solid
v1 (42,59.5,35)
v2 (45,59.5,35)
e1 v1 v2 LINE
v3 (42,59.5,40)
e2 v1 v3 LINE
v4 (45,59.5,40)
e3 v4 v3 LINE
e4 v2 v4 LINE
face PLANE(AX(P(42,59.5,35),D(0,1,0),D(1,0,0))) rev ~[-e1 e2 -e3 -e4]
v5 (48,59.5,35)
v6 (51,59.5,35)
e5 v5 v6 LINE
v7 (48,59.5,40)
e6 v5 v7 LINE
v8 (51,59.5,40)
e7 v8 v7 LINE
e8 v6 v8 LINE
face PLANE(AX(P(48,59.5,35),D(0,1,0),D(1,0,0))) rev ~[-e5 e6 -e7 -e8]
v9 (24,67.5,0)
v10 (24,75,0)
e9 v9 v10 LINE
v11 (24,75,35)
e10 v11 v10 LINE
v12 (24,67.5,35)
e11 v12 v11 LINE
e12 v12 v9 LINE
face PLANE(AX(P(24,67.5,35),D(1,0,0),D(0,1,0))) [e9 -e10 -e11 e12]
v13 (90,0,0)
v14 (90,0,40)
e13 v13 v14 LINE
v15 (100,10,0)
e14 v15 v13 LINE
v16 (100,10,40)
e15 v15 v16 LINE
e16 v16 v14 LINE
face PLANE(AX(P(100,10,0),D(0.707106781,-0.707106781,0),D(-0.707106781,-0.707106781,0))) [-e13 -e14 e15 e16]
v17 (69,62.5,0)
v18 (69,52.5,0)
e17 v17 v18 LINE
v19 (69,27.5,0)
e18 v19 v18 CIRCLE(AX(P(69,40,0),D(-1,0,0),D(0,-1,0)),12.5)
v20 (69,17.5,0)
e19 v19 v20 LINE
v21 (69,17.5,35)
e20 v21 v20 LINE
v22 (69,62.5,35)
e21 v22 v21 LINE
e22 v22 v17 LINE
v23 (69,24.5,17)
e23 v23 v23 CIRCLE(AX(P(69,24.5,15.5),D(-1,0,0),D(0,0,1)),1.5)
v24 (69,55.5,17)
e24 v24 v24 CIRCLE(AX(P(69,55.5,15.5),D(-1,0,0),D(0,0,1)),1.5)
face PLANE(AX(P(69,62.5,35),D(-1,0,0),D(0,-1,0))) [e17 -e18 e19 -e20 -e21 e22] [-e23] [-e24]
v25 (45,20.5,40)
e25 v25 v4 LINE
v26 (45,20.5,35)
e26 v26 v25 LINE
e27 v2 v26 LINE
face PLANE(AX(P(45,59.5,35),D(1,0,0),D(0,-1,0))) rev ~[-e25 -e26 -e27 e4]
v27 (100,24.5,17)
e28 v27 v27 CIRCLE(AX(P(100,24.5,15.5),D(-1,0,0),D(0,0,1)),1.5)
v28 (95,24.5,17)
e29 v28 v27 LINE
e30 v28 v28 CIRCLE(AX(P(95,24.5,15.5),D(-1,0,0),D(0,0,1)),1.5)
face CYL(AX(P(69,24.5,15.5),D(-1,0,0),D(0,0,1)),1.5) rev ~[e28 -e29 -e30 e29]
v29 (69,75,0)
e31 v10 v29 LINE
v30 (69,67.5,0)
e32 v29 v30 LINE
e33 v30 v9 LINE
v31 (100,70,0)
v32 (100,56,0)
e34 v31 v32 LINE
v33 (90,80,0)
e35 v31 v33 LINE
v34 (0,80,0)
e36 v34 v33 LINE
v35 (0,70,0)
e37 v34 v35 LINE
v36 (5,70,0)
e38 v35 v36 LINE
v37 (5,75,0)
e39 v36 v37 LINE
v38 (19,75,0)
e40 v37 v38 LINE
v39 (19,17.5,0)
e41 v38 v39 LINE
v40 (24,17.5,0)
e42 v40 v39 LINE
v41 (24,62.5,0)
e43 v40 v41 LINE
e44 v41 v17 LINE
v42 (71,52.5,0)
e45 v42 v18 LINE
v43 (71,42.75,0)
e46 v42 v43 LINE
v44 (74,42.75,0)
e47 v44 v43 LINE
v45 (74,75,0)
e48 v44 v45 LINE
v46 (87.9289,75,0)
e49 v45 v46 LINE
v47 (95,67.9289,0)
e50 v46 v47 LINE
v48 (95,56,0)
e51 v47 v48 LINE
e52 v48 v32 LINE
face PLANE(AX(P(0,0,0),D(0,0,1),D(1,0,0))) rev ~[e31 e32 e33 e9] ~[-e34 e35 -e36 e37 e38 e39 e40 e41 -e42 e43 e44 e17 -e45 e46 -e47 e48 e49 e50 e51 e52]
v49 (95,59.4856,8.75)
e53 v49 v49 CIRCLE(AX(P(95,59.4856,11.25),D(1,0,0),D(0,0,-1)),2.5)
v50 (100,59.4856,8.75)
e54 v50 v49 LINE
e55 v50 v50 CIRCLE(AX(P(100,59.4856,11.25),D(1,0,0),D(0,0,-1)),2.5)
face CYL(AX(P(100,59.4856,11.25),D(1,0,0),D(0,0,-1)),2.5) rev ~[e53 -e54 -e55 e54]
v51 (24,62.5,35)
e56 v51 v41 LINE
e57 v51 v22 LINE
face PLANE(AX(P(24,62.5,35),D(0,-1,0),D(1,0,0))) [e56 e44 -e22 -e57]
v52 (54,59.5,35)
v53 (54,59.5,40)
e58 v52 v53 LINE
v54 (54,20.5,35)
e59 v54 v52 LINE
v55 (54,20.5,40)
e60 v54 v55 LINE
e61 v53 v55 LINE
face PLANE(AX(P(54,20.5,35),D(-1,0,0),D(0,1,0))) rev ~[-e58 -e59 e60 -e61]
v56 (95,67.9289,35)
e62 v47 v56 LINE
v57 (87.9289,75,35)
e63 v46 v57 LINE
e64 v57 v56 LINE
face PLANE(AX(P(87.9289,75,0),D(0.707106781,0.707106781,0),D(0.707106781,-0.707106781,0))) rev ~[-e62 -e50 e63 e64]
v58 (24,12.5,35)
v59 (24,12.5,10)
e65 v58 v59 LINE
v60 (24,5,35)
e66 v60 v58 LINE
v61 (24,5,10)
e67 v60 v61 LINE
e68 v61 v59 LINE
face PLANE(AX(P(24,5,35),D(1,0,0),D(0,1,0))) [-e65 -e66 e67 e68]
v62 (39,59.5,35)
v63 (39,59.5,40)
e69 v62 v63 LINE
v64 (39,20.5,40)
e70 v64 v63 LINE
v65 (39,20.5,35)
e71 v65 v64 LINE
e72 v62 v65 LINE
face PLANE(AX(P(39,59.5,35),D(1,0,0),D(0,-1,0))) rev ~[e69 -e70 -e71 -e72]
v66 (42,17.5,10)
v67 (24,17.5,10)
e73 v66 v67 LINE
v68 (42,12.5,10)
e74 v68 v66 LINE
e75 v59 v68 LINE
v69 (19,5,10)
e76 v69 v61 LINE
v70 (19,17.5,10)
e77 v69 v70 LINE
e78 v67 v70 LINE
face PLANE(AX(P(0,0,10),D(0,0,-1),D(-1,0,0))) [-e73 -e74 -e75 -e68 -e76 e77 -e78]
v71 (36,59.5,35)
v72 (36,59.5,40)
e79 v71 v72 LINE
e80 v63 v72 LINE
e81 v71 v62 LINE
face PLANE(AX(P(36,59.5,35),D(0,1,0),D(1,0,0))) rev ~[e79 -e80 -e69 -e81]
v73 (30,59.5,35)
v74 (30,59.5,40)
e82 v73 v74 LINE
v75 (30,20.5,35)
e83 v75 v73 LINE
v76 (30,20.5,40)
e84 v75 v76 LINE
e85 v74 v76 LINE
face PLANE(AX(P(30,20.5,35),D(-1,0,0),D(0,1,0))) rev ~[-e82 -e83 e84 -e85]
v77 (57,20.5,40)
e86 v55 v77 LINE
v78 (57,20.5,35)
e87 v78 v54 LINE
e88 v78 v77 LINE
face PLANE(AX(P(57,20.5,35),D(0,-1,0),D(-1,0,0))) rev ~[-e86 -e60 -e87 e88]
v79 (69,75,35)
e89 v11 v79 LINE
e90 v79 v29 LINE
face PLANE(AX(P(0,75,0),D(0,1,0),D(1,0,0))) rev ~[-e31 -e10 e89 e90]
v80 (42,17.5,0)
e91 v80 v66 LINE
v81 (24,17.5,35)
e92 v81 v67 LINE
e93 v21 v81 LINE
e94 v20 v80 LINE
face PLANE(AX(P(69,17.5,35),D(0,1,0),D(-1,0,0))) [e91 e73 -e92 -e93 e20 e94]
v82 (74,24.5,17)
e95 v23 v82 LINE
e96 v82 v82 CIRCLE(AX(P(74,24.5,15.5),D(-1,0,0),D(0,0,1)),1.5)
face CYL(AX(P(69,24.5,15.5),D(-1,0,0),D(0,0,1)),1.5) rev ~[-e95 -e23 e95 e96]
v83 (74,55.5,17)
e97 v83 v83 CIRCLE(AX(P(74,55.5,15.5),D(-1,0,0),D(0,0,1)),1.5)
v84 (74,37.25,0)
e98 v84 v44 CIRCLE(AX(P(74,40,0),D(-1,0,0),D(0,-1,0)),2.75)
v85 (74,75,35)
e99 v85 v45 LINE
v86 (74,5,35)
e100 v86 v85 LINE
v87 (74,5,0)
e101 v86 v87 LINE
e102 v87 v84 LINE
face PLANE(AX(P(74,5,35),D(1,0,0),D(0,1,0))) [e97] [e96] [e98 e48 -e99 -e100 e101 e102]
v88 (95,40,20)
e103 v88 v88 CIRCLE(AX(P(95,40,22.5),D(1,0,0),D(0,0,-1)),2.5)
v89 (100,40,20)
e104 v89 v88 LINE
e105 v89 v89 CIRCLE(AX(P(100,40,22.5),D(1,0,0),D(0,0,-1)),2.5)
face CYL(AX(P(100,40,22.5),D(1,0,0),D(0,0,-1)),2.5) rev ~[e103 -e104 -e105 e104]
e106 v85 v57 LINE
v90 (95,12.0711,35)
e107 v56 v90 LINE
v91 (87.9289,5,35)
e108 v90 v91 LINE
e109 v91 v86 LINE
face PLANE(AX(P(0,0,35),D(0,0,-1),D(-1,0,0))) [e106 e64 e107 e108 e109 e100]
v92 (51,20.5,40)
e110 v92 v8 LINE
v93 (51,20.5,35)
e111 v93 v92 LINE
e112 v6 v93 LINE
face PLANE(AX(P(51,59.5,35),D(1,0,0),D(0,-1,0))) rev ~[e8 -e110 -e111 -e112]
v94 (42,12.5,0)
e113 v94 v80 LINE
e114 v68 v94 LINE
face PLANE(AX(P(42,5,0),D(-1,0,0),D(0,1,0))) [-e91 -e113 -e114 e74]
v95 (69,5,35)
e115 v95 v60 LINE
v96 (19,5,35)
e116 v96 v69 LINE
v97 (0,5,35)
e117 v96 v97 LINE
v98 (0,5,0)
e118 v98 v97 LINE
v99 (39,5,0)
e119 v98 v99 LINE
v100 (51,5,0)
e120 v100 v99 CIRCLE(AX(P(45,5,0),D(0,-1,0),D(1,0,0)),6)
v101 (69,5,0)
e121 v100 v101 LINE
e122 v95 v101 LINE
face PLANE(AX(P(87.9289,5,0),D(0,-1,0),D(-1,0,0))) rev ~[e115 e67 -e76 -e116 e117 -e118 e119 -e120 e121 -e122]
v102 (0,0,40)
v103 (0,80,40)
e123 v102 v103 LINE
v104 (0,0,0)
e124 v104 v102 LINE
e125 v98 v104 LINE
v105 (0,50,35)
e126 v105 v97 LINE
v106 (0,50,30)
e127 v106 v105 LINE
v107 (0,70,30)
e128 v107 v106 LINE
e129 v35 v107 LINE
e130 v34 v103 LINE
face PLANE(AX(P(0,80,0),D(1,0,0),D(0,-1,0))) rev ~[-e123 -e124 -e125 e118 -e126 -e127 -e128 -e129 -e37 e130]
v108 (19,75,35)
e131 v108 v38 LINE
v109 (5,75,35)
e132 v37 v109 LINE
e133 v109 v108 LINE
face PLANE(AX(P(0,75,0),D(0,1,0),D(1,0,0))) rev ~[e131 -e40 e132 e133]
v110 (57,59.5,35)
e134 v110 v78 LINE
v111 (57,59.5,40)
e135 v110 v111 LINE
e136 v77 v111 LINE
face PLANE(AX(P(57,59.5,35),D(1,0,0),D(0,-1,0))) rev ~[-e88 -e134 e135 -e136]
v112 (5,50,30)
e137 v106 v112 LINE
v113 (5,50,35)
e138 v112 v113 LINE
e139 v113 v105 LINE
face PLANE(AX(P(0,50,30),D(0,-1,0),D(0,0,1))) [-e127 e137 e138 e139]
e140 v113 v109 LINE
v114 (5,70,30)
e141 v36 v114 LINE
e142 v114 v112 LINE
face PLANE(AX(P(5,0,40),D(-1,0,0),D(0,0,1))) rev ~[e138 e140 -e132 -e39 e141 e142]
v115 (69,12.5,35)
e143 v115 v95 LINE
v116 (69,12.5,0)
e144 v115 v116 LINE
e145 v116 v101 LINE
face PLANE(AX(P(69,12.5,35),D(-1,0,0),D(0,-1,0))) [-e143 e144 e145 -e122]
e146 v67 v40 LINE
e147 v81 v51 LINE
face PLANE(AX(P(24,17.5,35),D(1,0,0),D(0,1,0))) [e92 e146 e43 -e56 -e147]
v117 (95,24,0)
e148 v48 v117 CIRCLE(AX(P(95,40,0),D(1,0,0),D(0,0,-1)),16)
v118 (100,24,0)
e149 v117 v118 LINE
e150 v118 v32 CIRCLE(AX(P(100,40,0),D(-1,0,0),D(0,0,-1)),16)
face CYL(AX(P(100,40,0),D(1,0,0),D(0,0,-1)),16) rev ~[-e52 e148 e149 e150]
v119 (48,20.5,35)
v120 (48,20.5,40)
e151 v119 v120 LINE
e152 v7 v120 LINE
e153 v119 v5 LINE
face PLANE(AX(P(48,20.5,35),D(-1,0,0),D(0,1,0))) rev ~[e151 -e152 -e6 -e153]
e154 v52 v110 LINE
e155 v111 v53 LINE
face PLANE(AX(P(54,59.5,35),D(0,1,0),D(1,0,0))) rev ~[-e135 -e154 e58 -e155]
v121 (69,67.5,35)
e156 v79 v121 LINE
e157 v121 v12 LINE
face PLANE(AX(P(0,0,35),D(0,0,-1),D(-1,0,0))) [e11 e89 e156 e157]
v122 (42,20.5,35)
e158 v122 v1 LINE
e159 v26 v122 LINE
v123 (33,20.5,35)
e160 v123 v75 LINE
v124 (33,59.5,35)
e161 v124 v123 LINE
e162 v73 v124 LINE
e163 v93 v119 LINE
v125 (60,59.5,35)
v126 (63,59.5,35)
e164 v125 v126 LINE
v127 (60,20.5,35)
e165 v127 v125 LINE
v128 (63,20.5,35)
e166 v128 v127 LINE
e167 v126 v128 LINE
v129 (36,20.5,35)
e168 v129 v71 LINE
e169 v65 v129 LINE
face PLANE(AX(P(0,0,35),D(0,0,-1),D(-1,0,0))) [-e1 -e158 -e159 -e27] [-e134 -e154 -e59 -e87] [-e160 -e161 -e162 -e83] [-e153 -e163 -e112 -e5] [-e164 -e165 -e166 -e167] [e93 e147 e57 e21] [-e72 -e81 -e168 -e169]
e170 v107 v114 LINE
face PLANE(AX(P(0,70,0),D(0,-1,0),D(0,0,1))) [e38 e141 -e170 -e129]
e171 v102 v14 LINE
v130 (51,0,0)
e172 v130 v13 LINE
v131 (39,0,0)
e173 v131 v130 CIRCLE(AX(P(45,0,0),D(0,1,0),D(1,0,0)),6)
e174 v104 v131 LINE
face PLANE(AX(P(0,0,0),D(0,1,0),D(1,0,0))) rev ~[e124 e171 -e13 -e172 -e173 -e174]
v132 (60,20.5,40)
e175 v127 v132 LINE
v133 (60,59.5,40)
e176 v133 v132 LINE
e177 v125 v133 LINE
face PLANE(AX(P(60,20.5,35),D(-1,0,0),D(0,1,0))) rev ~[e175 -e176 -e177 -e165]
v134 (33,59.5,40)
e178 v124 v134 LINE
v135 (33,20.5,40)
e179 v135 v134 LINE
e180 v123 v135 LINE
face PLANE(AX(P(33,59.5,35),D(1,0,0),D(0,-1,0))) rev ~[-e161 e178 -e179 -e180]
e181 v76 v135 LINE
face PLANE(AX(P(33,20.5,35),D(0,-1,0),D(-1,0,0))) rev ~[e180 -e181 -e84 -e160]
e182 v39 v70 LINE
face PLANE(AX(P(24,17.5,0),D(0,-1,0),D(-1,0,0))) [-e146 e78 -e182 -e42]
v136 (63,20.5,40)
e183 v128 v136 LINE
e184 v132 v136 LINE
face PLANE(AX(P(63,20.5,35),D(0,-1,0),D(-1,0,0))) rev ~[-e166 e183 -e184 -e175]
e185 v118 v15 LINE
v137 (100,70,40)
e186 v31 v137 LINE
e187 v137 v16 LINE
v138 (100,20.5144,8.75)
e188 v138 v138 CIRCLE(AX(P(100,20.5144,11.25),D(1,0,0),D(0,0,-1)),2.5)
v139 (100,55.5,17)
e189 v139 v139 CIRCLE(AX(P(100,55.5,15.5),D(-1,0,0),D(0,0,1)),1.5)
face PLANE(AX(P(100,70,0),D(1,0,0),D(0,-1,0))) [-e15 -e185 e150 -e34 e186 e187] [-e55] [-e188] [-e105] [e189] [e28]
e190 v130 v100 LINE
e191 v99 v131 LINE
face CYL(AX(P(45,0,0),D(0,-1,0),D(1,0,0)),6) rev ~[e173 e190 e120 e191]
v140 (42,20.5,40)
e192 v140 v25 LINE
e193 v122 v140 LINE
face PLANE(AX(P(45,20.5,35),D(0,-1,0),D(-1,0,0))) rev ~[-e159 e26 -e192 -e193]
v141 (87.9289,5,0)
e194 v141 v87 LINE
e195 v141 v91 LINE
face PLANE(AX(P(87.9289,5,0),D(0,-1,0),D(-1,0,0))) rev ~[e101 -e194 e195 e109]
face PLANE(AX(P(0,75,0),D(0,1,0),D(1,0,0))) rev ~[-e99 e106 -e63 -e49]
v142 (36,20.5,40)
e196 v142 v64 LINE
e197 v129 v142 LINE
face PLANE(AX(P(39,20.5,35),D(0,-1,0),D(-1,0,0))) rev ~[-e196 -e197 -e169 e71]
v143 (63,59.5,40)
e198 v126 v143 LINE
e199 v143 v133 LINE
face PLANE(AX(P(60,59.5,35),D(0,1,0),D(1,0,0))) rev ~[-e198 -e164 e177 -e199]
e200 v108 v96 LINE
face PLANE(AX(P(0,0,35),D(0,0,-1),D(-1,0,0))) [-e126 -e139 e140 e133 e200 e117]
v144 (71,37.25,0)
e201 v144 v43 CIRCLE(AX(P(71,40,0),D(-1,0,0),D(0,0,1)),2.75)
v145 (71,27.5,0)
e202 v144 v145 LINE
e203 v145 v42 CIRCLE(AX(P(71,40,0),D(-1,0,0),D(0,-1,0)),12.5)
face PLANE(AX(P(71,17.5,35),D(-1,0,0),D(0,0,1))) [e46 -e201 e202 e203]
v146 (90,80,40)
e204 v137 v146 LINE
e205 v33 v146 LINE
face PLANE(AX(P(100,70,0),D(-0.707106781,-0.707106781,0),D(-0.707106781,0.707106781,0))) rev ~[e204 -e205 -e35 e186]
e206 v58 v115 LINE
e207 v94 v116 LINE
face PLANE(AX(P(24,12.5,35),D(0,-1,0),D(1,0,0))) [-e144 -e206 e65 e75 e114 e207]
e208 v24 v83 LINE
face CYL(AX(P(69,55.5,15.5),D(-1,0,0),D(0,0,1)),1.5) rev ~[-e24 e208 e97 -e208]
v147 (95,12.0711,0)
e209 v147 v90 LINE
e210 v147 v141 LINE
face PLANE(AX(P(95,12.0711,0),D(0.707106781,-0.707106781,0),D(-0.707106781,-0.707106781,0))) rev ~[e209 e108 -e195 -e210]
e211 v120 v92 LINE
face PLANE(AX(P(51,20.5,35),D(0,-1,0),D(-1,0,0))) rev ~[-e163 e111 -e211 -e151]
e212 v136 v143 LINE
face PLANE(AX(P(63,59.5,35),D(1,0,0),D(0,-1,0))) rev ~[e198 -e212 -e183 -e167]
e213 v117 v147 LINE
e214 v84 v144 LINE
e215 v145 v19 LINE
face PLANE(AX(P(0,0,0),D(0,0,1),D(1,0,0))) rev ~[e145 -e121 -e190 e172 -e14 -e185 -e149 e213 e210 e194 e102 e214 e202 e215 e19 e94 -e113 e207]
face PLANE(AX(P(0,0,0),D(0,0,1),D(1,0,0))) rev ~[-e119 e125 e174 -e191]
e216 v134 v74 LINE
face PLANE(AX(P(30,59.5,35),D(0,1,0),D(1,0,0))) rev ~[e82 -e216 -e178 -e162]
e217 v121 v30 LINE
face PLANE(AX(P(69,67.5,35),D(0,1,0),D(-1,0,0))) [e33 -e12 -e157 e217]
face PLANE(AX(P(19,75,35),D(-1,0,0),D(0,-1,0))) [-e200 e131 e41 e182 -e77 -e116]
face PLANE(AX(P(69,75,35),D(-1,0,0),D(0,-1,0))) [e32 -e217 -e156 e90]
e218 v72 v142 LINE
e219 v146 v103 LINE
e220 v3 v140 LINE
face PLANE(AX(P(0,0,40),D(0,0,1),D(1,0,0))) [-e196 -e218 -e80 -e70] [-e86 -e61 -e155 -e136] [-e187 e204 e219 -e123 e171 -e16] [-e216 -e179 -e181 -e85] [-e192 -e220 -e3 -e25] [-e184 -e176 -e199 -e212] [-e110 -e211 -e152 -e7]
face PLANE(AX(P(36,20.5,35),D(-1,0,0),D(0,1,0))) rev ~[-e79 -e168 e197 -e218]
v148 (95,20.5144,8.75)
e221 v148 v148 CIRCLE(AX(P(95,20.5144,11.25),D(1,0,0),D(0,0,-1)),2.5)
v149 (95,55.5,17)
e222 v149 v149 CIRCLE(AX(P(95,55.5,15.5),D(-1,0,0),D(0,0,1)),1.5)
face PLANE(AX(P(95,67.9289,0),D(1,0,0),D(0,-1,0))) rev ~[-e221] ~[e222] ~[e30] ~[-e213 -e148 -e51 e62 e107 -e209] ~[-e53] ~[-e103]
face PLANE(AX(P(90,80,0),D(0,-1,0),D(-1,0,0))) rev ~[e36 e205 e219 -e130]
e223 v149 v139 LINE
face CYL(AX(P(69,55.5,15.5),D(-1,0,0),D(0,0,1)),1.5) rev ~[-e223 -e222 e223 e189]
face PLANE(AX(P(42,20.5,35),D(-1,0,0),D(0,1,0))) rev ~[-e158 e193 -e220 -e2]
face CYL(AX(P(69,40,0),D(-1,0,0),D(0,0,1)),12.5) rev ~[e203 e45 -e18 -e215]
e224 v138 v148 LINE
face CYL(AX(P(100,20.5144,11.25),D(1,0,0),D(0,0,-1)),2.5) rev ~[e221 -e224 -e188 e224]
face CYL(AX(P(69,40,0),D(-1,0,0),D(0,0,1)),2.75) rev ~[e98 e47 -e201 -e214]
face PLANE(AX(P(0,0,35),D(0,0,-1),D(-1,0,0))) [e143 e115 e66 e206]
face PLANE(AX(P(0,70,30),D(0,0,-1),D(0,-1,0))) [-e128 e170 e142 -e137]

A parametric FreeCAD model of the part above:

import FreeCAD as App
import Part
import Sketcher
from FreeCAD import Vector
Q = App.Units.Quantity

doc = App.newDocument("Part")
body = doc.addObject("PartDesign::Body", "Body")

sketch1 = body.newObject("Sketcher::SketchObject", "Sketch")
sketch1.AttachmentSupport = (doc.getObject("XY_Plane"), [""])
sketch1.MapMode = "FlatFace"
sketch1.addGeometry(Part.LineSegment(Vector(0, 80, 0), Vector(0, 0, 0)), False)
sketch1.addGeometry(Part.LineSegment(Vector(0, 0, 0), Vector(90, 0, 0)), False)
sketch1.addGeometry(Part.LineSegment(Vector(90, 0, 0), Vector(100, 10, 0)), False)
sketch1.addGeometry(Part.LineSegment(Vector(100, 10, 0), Vector(100, 70, 0)), False)
sketch1.addGeometry(Part.LineSegment(Vector(100, 70, 0), Vector(90, 80, 0)), False)
sketch1.addGeometry(Part.LineSegment(Vector(90, 80, 0), Vector(0, 80, 0)), False)
sketch1.addConstraint(Sketcher.Constraint("Coincident", 0, 2, 1, 1))
sketch1.addConstraint(Sketcher.Constraint("Coincident", 1, 2, 2, 1))
sketch1.addConstraint(Sketcher.Constraint("Coincident", 2, 2, 3, 1))
sketch1.addConstraint(Sketcher.Constraint("Coincident", 3, 2, 4, 1))
sketch1.addConstraint(Sketcher.Constraint("Coincident", 4, 2, 5, 1))
sketch1.addConstraint(Sketcher.Constraint("Coincident", 5, 2, 0, 1))
sketch1.addConstraint(Sketcher.Constraint("Vertical", 0))
sketch1.addConstraint(Sketcher.Constraint("Horizontal", 1))
sketch1.addConstraint(Sketcher.Constraint("Vertical", 3))
sketch1.addConstraint(Sketcher.Constraint("Horizontal", 5))
sketch1.addConstraint(Sketcher.Constraint("Coincident", 0, 2, -1, 1))
sketch1.addConstraint(Sketcher.Constraint("Perpendicular", 2, 4))
sketch1.addConstraint(Sketcher.Constraint("Vertical", 1, 2, 4, 2))
sketch1.addConstraint(Sketcher.Constraint("Equal", 2, 4))
sketch1.addConstraint(Sketcher.Constraint("DistanceY", 0, 2, 0, 1, Q("80 mm")))
sketch1.addConstraint(Sketcher.Constraint("DistanceX", -1, 1, 2, 2, Q("100 mm")))
sketch1.addConstraint(Sketcher.Constraint("DistanceY", -1, 1, 2, 2, Q("10 mm")))
pad1 = body.newObject("PartDesign::Pad", "Pad")
pad1.Profile = sketch1
pad1.Length = 40

sketch2 = body.newObject("Sketcher::SketchObject", "Sketch001")
sketch2.AttachmentSupport = (doc.getObject("XY_Plane"), [""])
sketch2.MapMode = "FlatFace"
sketch2.addGeometry(Part.LineSegment(Vector(0, 5, 0), Vector(0, 75, 0)), False)
sketch2.addGeometry(Part.LineSegment(Vector(0, 75, 0), Vector(88, 75, 0)), False)
sketch2.addGeometry(Part.LineSegment(Vector(88, 75, 0), Vector(95, 68, 0)), False)
sketch2.addGeometry(Part.LineSegment(Vector(95, 68, 0), Vector(95, 12, 0)), False)
sketch2.addGeometry(Part.LineSegment(Vector(95, 12, 0), Vector(88, 5, 0)), False)
sketch2.addGeometry(Part.LineSegment(Vector(88, 5, 0), Vector(0, 5, 0)), False)
sketch2.addConstraint(Sketcher.Constraint("Coincident", 0, 2, 1, 1))
sketch2.addConstraint(Sketcher.Constraint("Coincident", 1, 2, 2, 1))
sketch2.addConstraint(Sketcher.Constraint("Coincident", 2, 2, 3, 1))
sketch2.addConstraint(Sketcher.Constraint("Coincident", 3, 2, 4, 1))
sketch2.addConstraint(Sketcher.Constraint("Coincident", 4, 2, 5, 1))
sketch2.addConstraint(Sketcher.Constraint("Coincident", 5, 2, 0, 1))
sketch2.addConstraint(Sketcher.Constraint("Vertical", 0))
sketch2.addConstraint(Sketcher.Constraint("Horizontal", 1))
sketch2.addConstraint(Sketcher.Constraint("Vertical", 3))
sketch2.addConstraint(Sketcher.Constraint("Horizontal", 5))
sketch2.addConstraint(Sketcher.Constraint("PointOnObject", 0, 2, -2))
sketch2.addConstraint(Sketcher.Constraint("Perpendicular", 2, 4))
sketch2.addConstraint(Sketcher.Constraint("Vertical", 1, 2, 4, 2))
sketch2.addConstraint(Sketcher.Constraint("Equal", 2, 4))
sketch2.addConstraint(Sketcher.Constraint("DistanceY", -1, 1, 4, 2, Q("5 mm")))
sketch2.addConstraint(Sketcher.Constraint("DistanceY", 0, 1, 0, 2, Q("70 mm")))
sketch2.addConstraint(Sketcher.Constraint("Distance", 2, Q("10 mm")))
sketch2.addConstraint(Sketcher.Constraint("DistanceX", -1, 1, 2, 2, Q("95 mm")))
pocket1 = body.newObject("PartDesign::Pocket", "Pocket")
pocket1.Profile = sketch2
pocket1.Length = 35
pocket1.Reversed = True

sketch3 = body.newObject("Sketcher::SketchObject", "Sketch002")
sketch3.AttachmentSupport = (doc.getObject("YZ_Plane"), [""])
sketch3.MapMode = "FlatFace"
sketch3.addGeometry(Part.LineSegment(Vector(50, 30, 0), Vector(50, 40, 0)), False)
sketch3.addGeometry(Part.LineSegment(Vector(50, 40, 0), Vector(80, 40, 0)), False)
sketch3.addGeometry(Part.LineSegment(Vector(80, 40, 0), Vector(80, 0, 0)), False)
sketch3.addGeometry(Part.LineSegment(Vector(80, 0, 0), Vector(70, 0, 0)), False)
sketch3.addGeometry(Part.LineSegment(Vector(70, 0, 0), Vector(70, 30, 0)), False)
sketch3.addGeometry(Part.LineSegment(Vector(70, 30, 0), Vector(50, 30, 0)), False)
sketch3.addConstraint(Sketcher.Constraint("Coincident", 0, 2, 1, 1))
sketch3.addConstraint(Sketcher.Constraint("Coincident", 1, 2, 2, 1))
sketch3.addConstraint(Sketcher.Constraint("Coincident", 2, 2, 3, 1))
sketch3.addConstraint(Sketcher.Constraint("Coincident", 3, 2, 4, 1))
sketch3.addConstraint(Sketcher.Constraint("Coincident", 4, 2, 5, 1))
sketch3.addConstraint(Sketcher.Constraint("Coincident", 5, 2, 0, 1))
sketch3.addConstraint(Sketcher.Constraint("Vertical", 0))
sketch3.addConstraint(Sketcher.Constraint("Horizontal", 1))
sketch3.addConstraint(Sketcher.Constraint("Vertical", 2))
sketch3.addConstraint(Sketcher.Constraint("Horizontal", 3))
sketch3.addConstraint(Sketcher.Constraint("Vertical", 4))
sketch3.addConstraint(Sketcher.Constraint("Horizontal", 5))
sketch3.addConstraint(Sketcher.Constraint("PointOnObject", 2, 2, -1))
sketch3.addConstraint(Sketcher.Constraint("Equal", 3, 0))
sketch3.addConstraint(Sketcher.Constraint("Equal", 1, 4))
sketch3.addConstraint(Sketcher.Constraint("DistanceX", 3, 2, 3, 1, Q("10 mm")))
sketch3.addConstraint(Sketcher.Constraint("DistanceX", -1, 1, 0, 2, Q("50 mm")))
sketch3.addConstraint(Sketcher.Constraint("DistanceX", 1, 1, 1, 2, Q("30 mm")))
pad2 = body.newObject("PartDesign::Pad", "Pad001")
pad2.Profile = sketch3
pad2.Length = 5

sketch4 = body.newObject("Sketcher::SketchObject", "Sketch003")
sketch4.AttachmentSupport = (doc.getObject("YZ_Plane"), [""])
sketch4.MapMode = "FlatFace"
sketch4.AttachmentOffset = App.Placement(Vector(0, 0, 100), App.Rotation())
sketch4.addGeometry(Part.Circle(Vector(40, 0, 0), Vector(0, 0, 1), 16), False)
sketch4.addConstraint(Sketcher.Constraint("PointOnObject", 0, 3, -1))
sketch4.addConstraint(Sketcher.Constraint("Diameter", 0, Q("32 mm")))
sketch4.addConstraint(Sketcher.Constraint("DistanceX", -1, 1, 0, 3, Q("40 mm")))
pocket2 = body.newObject("PartDesign::Pocket", "Pocket001")
pocket2.Profile = sketch4
pocket2.Type = "ThroughAll"

sketch5 = body.newObject("Sketcher::SketchObject", "Sketch004")
sketch5.AttachmentSupport = (doc.getObject("XY_Plane"), [""])
sketch5.MapMode = "FlatFace"
sketch5.AttachmentOffset = App.Placement(Vector(0, 0, 35), App.Rotation())
sketch5.addGeometry(Part.LineSegment(Vector(69, 75, 0), Vector(74, 75, 0)), False)
sketch5.addGeometry(Part.LineSegment(Vector(74, 75, 0), Vector(74, 5, 0)), False)
sketch5.addGeometry(Part.LineSegment(Vector(74, 5, 0), Vector(69, 5, 0)), False)
sketch5.addGeometry(Part.LineSegment(Vector(69, 5, 0), Vector(69, 12, 0)), False)
sketch5.addGeometry(Part.LineSegment(Vector(69, 12, 0), Vector(24, 12, 0)), False)
sketch5.addGeometry(Part.LineSegment(Vector(24, 12, 0), Vector(24, 5, 0)), False)
sketch5.addGeometry(Part.LineSegment(Vector(24, 5, 0), Vector(19, 5, 0)), False)
sketch5.addGeometry(Part.LineSegment(Vector(19, 5, 0), Vector(19, 75, 0)), False)
sketch5.addGeometry(Part.LineSegment(Vector(19, 75, 0), Vector(24, 75, 0)), False)
sketch5.addGeometry(Part.LineSegment(Vector(24, 75, 0), Vector(24, 68, 0)), False)
sketch5.addGeometry(Part.LineSegment(Vector(24, 68, 0), Vector(69, 68, 0)), False)
sketch5.addGeometry(Part.LineSegment(Vector(69, 68, 0), Vector(69, 75, 0)), False)
sketch5.addGeometry(Part.LineSegment(Vector(69, 18, 0), Vector(69, 62, 0)), False)
sketch5.addGeometry(Part.LineSegment(Vector(69, 62, 0), Vector(24, 62, 0)), False)
sketch5.addGeometry(Part.LineSegment(Vector(24, 62, 0), Vector(24, 18, 0)), False)
sketch5.addGeometry(Part.LineSegment(Vector(24, 18, 0), Vector(69, 18, 0)), False)
sketch5.addConstraint(Sketcher.Constraint("Coincident", 0, 2, 1, 1))
sketch5.addConstraint(Sketcher.Constraint("Coincident", 1, 2, 2, 1))
sketch5.addConstraint(Sketcher.Constraint("Coincident", 2, 2, 3, 1))
sketch5.addConstraint(Sketcher.Constraint("Coincident", 3, 2, 4, 1))
sketch5.addConstraint(Sketcher.Constraint("Coincident", 4, 2, 5, 1))
sketch5.addConstraint(Sketcher.Constraint("Coincident", 5, 2, 6, 1))
sketch5.addConstraint(Sketcher.Constraint("Coincident", 6, 2, 7, 1))
sketch5.addConstraint(Sketcher.Constraint("Coincident", 7, 2, 8, 1))
sketch5.addConstraint(Sketcher.Constraint("Coincident", 8, 2, 9, 1))
sketch5.addConstraint(Sketcher.Constraint("Coincident", 9, 2, 10, 1))
sketch5.addConstraint(Sketcher.Constraint("Coincident", 10, 2, 11, 1))
sketch5.addConstraint(Sketcher.Constraint("Coincident", 11, 2, 0, 1))
sketch5.addConstraint(Sketcher.Constraint("Coincident", 12, 2, 13, 1))
sketch5.addConstraint(Sketcher.Constraint("Coincident", 13, 2, 14, 1))
sketch5.addConstraint(Sketcher.Constraint("Coincident", 14, 2, 15, 1))
sketch5.addConstraint(Sketcher.Constraint("Coincident", 15, 2, 12, 1))
sketch5.addConstraint(Sketcher.Constraint("Horizontal", 0))
sketch5.addConstraint(Sketcher.Constraint("Vertical", 1))
sketch5.addConstraint(Sketcher.Constraint("Horizontal", 2))
sketch5.addConstraint(Sketcher.Constraint("Vertical", 3))
sketch5.addConstraint(Sketcher.Constraint("Horizontal", 4))
sketch5.addConstraint(Sketcher.Constraint("Vertical", 5))
sketch5.addConstraint(Sketcher.Constraint("Horizontal", 6))
sketch5.addConstraint(Sketcher.Constraint("Vertical", 7))
sketch5.addConstraint(Sketcher.Constraint("Horizontal", 8))
sketch5.addConstraint(Sketcher.Constraint("Vertical", 9))
sketch5.addConstraint(Sketcher.Constraint("Horizontal", 10))
sketch5.addConstraint(Sketcher.Constraint("Vertical", 11))
sketch5.addConstraint(Sketcher.Constraint("Vertical", 12))
sketch5.addConstraint(Sketcher.Constraint("Horizontal", 13))
sketch5.addConstraint(Sketcher.Constraint("Vertical", 14))
sketch5.addConstraint(Sketcher.Constraint("Horizontal", 15))
sketch5.addConstraint(Sketcher.Constraint("Horizontal", 2, 2, 5, 2))
sketch5.addConstraint(Sketcher.Constraint("Horizontal", 0, 2, 7, 2))
sketch5.addConstraint(Sketcher.Constraint("Vertical", 5, 2, 8, 2))
sketch5.addConstraint(Sketcher.Constraint("Vertical", 3, 2, 10, 2))
sketch5.addConstraint(Sketcher.Constraint("Vertical", 11, 2, 12, 2))
sketch5.addConstraint(Sketcher.Constraint("Vertical", 9, 2, 13, 2))
sketch5.addConstraint(Sketcher.Constraint("Equal", 2, 6))
sketch5.addConstraint(Sketcher.Constraint("Equal", 5, 9))
sketch5.addConstraint(Sketcher.Constraint("Equal", 15, 12))
sketch5.addConstraint(Sketcher.Constraint("DistanceX", 0, 1, 0, 2, Q("5 mm")))
sketch5.addConstraint(Sketcher.Constraint("DistanceX", 4, 2, 4, 1, Q("45 mm")))
sketch5.addConstraint(Sketcher.Constraint("DistanceY", -1, 1, 1, 2, Q("5 mm")))
sketch5.addConstraint(Sketcher.Constraint("DistanceY", 12, 2, 10, 2, Q("5 mm")))
sketch5.addConstraint(Sketcher.Constraint("DistanceY", 4, 2, 14, 2, Q("5 mm")))
sketch5.addConstraint(Sketcher.Constraint("DistanceY", 1, 2, 1, 1, Q("70 mm")))
sketch5.addConstraint(Sketcher.Constraint("DistanceX", -1, 1, 0, 2, Q("74 mm")))
pad3 = body.newObject("PartDesign::Pad", "Pad002")
pad3.Profile = sketch5
pad3.Length = 35
pad3.Reversed = True

sketch6 = body.newObject("Sketcher::SketchObject", "Sketch005")
sketch6.AttachmentSupport = (doc.getObject("XY_Plane"), [""])
sketch6.MapMode = "FlatFace"
sketch6.addGeometry(Part.LineSegment(Vector(42, 5, 0), Vector(19, 5, 0)), False)
sketch6.addGeometry(Part.LineSegment(Vector(19, 5, 0), Vector(19, 18, 0)), False)
sketch6.addGeometry(Part.LineSegment(Vector(19, 18, 0), Vector(42, 18, 0)), False)
sketch6.addGeometry(Part.LineSegment(Vector(42, 18, 0), Vector(42, 5, 0)), False)
sketch6.addConstraint(Sketcher.Constraint("Coincident", 0, 2, 1, 1))
sketch6.addConstraint(Sketcher.Constraint("Coincident", 1, 2, 2, 1))
sketch6.addConstraint(Sketcher.Constraint("Coincident", 2, 2, 3, 1))
sketch6.addConstraint(Sketcher.Constraint("Coincident", 3, 2, 0, 1))
sketch6.addConstraint(Sketcher.Constraint("Horizontal", 0))
sketch6.addConstraint(Sketcher.Constraint("Vertical", 1))
sketch6.addConstraint(Sketcher.Constraint("Horizontal", 2))
sketch6.addConstraint(Sketcher.Constraint("Vertical", 3))
sketch6.addConstraint(Sketcher.Constraint("DistanceX", 0, 2, 0, 1, Q("23 mm")))
sketch6.addConstraint(Sketcher.Constraint("DistanceY", 1, 1, 1, 2, Q("12.5 mm")))
sketch6.addConstraint(Sketcher.Constraint("DistanceX", -1, 1, 0, 2, Q("19 mm")))
sketch6.addConstraint(Sketcher.Constraint("DistanceY", -1, 1, 0, 2, Q("5 mm")))
pocket3 = body.newObject("PartDesign::Pocket", "Pocket002")
pocket3.Profile = sketch6
pocket3.Length = 10
pocket3.Reversed = True

sketch7 = body.newObject("Sketcher::SketchObject", "Sketch006")
sketch7.AttachmentSupport = (doc.getObject("YZ_Plane"), [""])
sketch7.MapMode = "FlatFace"
sketch7.AttachmentOffset = App.Placement(Vector(0, 0, 69), App.Rotation())
sketch7.addGeometry(Part.Circle(Vector(40, 0, 0), Vector(0, 0, 1), 2.8), False)
sketch7.addGeometry(Part.Circle(Vector(55.5, 15.5, 0), Vector(0, 0, 1), 1.5), False)
sketch7.addGeometry(Part.Circle(Vector(24.5, 15.5, 0), Vector(0, 0, 1), 1.5), False)
sketch7.addConstraint(Sketcher.Constraint("Equal", 1, 2))
sketch7.addConstraint(Sketcher.Constraint("PointOnObject", 0, 3, -1))
sketch7.addConstraint(Sketcher.Constraint("Horizontal", 1, 3, 2, 3))
sketch7.addConstraint(Sketcher.Constraint("Diameter", 1, Q("3 mm")))
sketch7.addConstraint(Sketcher.Constraint("Diameter", 0, Q("5.5 mm")))
sketch7.addConstraint(Sketcher.Constraint("DistanceX", 2, 3, 1, 3, Q("31 mm")))
sketch7.addConstraint(Sketcher.Constraint("DistanceX", -1, 1, 0, 3, Q("40 mm")))
sketch7.addConstraint(Sketcher.Constraint("DistanceX", -1, 1, 1, 3, Q("55.5 mm")))
sketch7.addConstraint(Sketcher.Constraint("DistanceY", -1, 1, 1, 3, Q("15.5 mm")))
pocket4 = body.newObject("PartDesign::Pocket", "Pocket003")
pocket4.Profile = sketch7
pocket4.Type = "ThroughAll"
pocket4.Reversed = True

sketch8 = body.newObject("Sketcher::SketchObject", "Sketch007")
sketch8.AttachmentSupport = (doc.getObject("XY_Plane"), [""])
sketch8.MapMode = "FlatFace"
sketch8.AttachmentOffset = App.Placement(Vector(0, 0, 35), App.Rotation())
sketch8.addGeometry(Part.LineSegment(Vector(30, 20.5, 0), Vector(30, 59.5, 0)), False)
sketch8.addGeometry(Part.LineSegment(Vector(30, 59.5, 0), Vector(33, 59.5, 0)), False)
sketch8.addGeometry(Part.LineSegment(Vector(33, 59.5, 0), Vector(33, 20.5, 0)), False)
sketch8.addGeometry(Part.LineSegment(Vector(33, 20.5, 0), Vector(30, 20.5, 0)), False)
sketch8.addGeometry(Part.LineSegment(Vector(36, 20.5, 0), Vector(36, 59.5, 0)), False)
sketch8.addGeometry(Part.LineSegment(Vector(36, 59.5, 0), Vector(39, 59.5, 0)), False)
sketch8.addGeometry(Part.LineSegment(Vector(39, 59.5, 0), Vector(39, 20.5, 0)), False)
sketch8.addGeometry(Part.LineSegment(Vector(39, 20.5, 0), Vector(36, 20.5, 0)), False)
sketch8.addGeometry(Part.LineSegment(Vector(42, 20.5, 0), Vector(42, 59.5, 0)), False)
sketch8.addGeometry(Part.LineSegment(Vector(42, 59.5, 0), Vector(45, 59.5, 0)), False)
sketch8.addGeometry(Part.LineSegment(Vector(45, 59.5, 0), Vector(45, 20.5, 0)), False)
sketch8.addGeometry(Part.LineSegment(Vector(45, 20.5, 0), Vector(42, 20.5, 0)), False)
sketch8.addGeometry(Part.LineSegment(Vector(48, 20.5, 0), Vector(48, 59.5, 0)), False)
sketch8.addGeometry(Part.LineSegment(Vector(48, 59.5, 0), Vector(51, 59.5, 0)), False)
sketch8.addGeometry(Part.LineSegment(Vector(51, 59.5, 0), Vector(51, 20.5, 0)), False)
sketch8.addGeometry(Part.LineSegment(Vector(51, 20.5, 0), Vector(48, 20.5, 0)), False)
sketch8.addGeometry(Part.LineSegment(Vector(54, 20.5, 0), Vector(54, 59.5, 0)), False)
sketch8.addGeometry(Part.LineSegment(Vector(54, 59.5, 0), Vector(57, 59.5, 0)), False)
sketch8.addGeometry(Part.LineSegment(Vector(57, 59.5, 0), Vector(57, 20.5, 0)), False)
sketch8.addGeometry(Part.LineSegment(Vector(57, 20.5, 0), Vector(54, 20.5, 0)), False)
sketch8.addGeometry(Part.LineSegment(Vector(60, 20.5, 0), Vector(60, 59.5, 0)), False)
sketch8.addGeometry(Part.LineSegment(Vector(60, 59.5, 0), Vector(63, 59.5, 0)), False)
sketch8.addGeometry(Part.LineSegment(Vector(63, 59.5, 0), Vector(63, 20.5, 0)), False)
sketch8.addGeometry(Part.LineSegment(Vector(63, 20.5, 0), Vector(60, 20.5, 0)), False)
sketch8.addConstraint(Sketcher.Constraint("Coincident", 0, 2, 1, 1))
sketch8.addConstraint(Sketcher.Constraint("Coincident", 1, 2, 2, 1))
sketch8.addConstraint(Sketcher.Constraint("Coincident", 2, 2, 3, 1))
sketch8.addConstraint(Sketcher.Constraint("Coincident", 3, 2, 0, 1))
sketch8.addConstraint(Sketcher.Constraint("Coincident", 4, 2, 5, 1))
sketch8.addConstraint(Sketcher.Constraint("Coincident", 5, 2, 6, 1))
sketch8.addConstraint(Sketcher.Constraint("Coincident", 6, 2, 7, 1))
sketch8.addConstraint(Sketcher.Constraint("Coincident", 7, 2, 4, 1))
sketch8.addConstraint(Sketcher.Constraint("Coincident", 8, 2, 9, 1))
sketch8.addConstraint(Sketcher.Constraint("Coincident", 9, 2, 10, 1))
sketch8.addConstraint(Sketcher.Constraint("Coincident", 10, 2, 11, 1))
sketch8.addConstraint(Sketcher.Constraint("Coincident", 11, 2, 8, 1))
sketch8.addConstraint(Sketcher.Constraint("Coincident", 12, 2, 13, 1))
sketch8.addConstraint(Sketcher.Constraint("Coincident", 13, 2, 14, 1))
sketch8.addConstraint(Sketcher.Constraint("Coincident", 14, 2, 15, 1))
sketch8.addConstraint(Sketcher.Constraint("Coincident", 15, 2, 12, 1))
sketch8.addConstraint(Sketcher.Constraint("Coincident", 16, 2, 17, 1))
sketch8.addConstraint(Sketcher.Constraint("Coincident", 17, 2, 18, 1))
sketch8.addConstraint(Sketcher.Constraint("Coincident", 18, 2, 19, 1))
sketch8.addConstraint(Sketcher.Constraint("Coincident", 19, 2, 16, 1))
sketch8.addConstraint(Sketcher.Constraint("Coincident", 20, 2, 21, 1))
sketch8.addConstraint(Sketcher.Constraint("Coincident", 21, 2, 22, 1))
sketch8.addConstraint(Sketcher.Constraint("Coincident", 22, 2, 23, 1))
sketch8.addConstraint(Sketcher.Constraint("Coincident", 23, 2, 20, 1))
sketch8.addConstraint(Sketcher.Constraint("Vertical", 0))
sketch8.addConstraint(Sketcher.Constraint("Horizontal", 1))
sketch8.addConstraint(Sketcher.Constraint("Vertical", 2))
sketch8.addConstraint(Sketcher.Constraint("Horizontal", 3))
sketch8.addConstraint(Sketcher.Constraint("Vertical", 4))
sketch8.addConstraint(Sketcher.Constraint("Horizontal", 5))
sketch8.addConstraint(Sketcher.Constraint("Vertical", 6))
sketch8.addConstraint(Sketcher.Constraint("Horizontal", 7))
sketch8.addConstraint(Sketcher.Constraint("Vertical", 8))
sketch8.addConstraint(Sketcher.Constraint("Horizontal", 9))
sketch8.addConstraint(Sketcher.Constraint("Vertical", 10))
sketch8.addConstraint(Sketcher.Constraint("Horizontal", 11))
sketch8.addConstraint(Sketcher.Constraint("Vertical", 12))
sketch8.addConstraint(Sketcher.Constraint("Horizontal", 13))
sketch8.addConstraint(Sketcher.Constraint("Vertical", 14))
sketch8.addConstraint(Sketcher.Constraint("Horizontal", 15))
sketch8.addConstraint(Sketcher.Constraint("Vertical", 16))
sketch8.addConstraint(Sketcher.Constraint("Horizontal", 17))
sketch8.addConstraint(Sketcher.Constraint("Vertical", 18))
sketch8.addConstraint(Sketcher.Constraint("Horizontal", 19))
sketch8.addConstraint(Sketcher.Constraint("Vertical", 20))
sketch8.addConstraint(Sketcher.Constraint("Horizontal", 21))
sketch8.addConstraint(Sketcher.Constraint("Vertical", 22))
sketch8.addConstraint(Sketcher.Constraint("Horizontal", 23))
sketch8.addConstraint(Sketcher.Constraint("Horizontal", 1, 2, 4, 2))
sketch8.addConstraint(Sketcher.Constraint("Horizontal", 3, 2, 6, 2))
sketch8.addConstraint(Sketcher.Constraint("Horizontal", 5, 2, 8, 2))
sketch8.addConstraint(Sketcher.Constraint("Horizontal", 7, 2, 10, 2))
sketch8.addConstraint(Sketcher.Constraint("Horizontal", 9, 2, 12, 2))
sketch8.addConstraint(Sketcher.Constraint("Horizontal", 11, 2, 14, 2))
sketch8.addConstraint(Sketcher.Constraint("Horizontal", 13, 2, 16, 2))
sketch8.addConstraint(Sketcher.Constraint("Horizontal", 15, 2, 18, 2))
sketch8.addConstraint(Sketcher.Constraint("Horizontal", 17, 2, 20, 2))
sketch8.addConstraint(Sketcher.Constraint("Horizontal", 19, 2, 22, 2))
sketch8.addConstraint(Sketcher.Constraint("Equal", 3, 5))
sketch8.addConstraint(Sketcher.Constraint("Equal", 7, 9))
sketch8.addConstraint(Sketcher.Constraint("Equal", 11, 13))
sketch8.addConstraint(Sketcher.Constraint("Equal", 15, 17))
sketch8.addConstraint(Sketcher.Constraint("Equal", 19, 21))
sketch8.addConstraint(Sketcher.Constraint("DistanceX", 1, 1, 1, 2, Q("3 mm")))
sketch8.addConstraint(Sketcher.Constraint("DistanceX", 1, 2, 4, 2, Q("3 mm")))
sketch8.addConstraint(Sketcher.Constraint("DistanceX", 5, 2, 8, 2, Q("3 mm")))
sketch8.addConstraint(Sketcher.Constraint("DistanceX", 9, 2, 12, 2, Q("3 mm")))
sketch8.addConstraint(Sketcher.Constraint("DistanceX", 13, 2, 16, 2, Q("3 mm")))
sketch8.addConstraint(Sketcher.Constraint("DistanceX", 17, 2, 20, 2, Q("3 mm")))
sketch8.addConstraint(Sketcher.Constraint("DistanceY", 0, 1, 0, 2, Q("39 mm")))
sketch8.addConstraint(Sketcher.Constraint("DistanceX", -1, 1, 0, 2, Q("30 mm")))
sketch8.addConstraint(Sketcher.Constraint("DistanceY", -1, 1, 0, 2, Q("59.5 mm")))
pocket5 = body.newObject("PartDesign::Pocket", "Pocket004")
pocket5.Profile = sketch8
pocket5.Type = "ThroughAll"
pocket5.Reversed = True

sketch9 = body.newObject("Sketcher::SketchObject", "Sketch008")
sketch9.AttachmentSupport = (doc.getObject("XZ_Plane"), [""])
sketch9.MapMode = "FlatFace"
sketch9.addGeometry(Part.Circle(Vector(45, 0, 0), Vector(0, 0, 1), 6), False)
sketch9.addConstraint(Sketcher.Constraint("PointOnObject", 0, 3, -1))
sketch9.addConstraint(Sketcher.Constraint("Diameter", 0, Q("12 mm")))
sketch9.addConstraint(Sketcher.Constraint("DistanceX", -1, 1, 0, 3, Q("45 mm")))
pocket6 = body.newObject("PartDesign::Pocket", "Pocket005")
pocket6.Profile = sketch9
pocket6.Length = 5

sketch10 = body.newObject("Sketcher::SketchObject", "Sketch009")
sketch10.AttachmentSupport = (doc.getObject("YZ_Plane"), [""])
sketch10.MapMode = "FlatFace"
sketch10.AttachmentOffset = App.Placement(Vector(0, 0, 69), App.Rotation())
sketch10.addGeometry(Part.Circle(Vector(40, 0, 0), Vector(0, 0, 1), 12), False)
sketch10.addConstraint(Sketcher.Constraint("PointOnObject", 0, 3, -1))
sketch10.addConstraint(Sketcher.Constraint("Diameter", 0, Q("25 mm")))
sketch10.addConstraint(Sketcher.Constraint("DistanceX", -1, 1, 0, 3, Q("40 mm")))
pocket7 = body.newObject("PartDesign::Pocket", "Pocket006")
pocket7.Profile = sketch10
pocket7.Length = 2
pocket7.Reversed = True

sketch11 = body.newObject("Sketcher::SketchObject", "Sketch010")
sketch11.AttachmentSupport = (doc.getObject("YZ_Plane"), [""])
sketch11.MapMode = "FlatFace"
sketch11.AttachmentOffset = App.Placement(Vector(0, 0, 100), App.Rotation())
sketch11.addGeometry(Part.Circle(Vector(40, 22.5, 0), Vector(0, 0, 1), 2.5), False)
sketch11.addGeometry(Part.Circle(Vector(20.5, 11.2, 0), Vector(0, 0, 1), 2.5), False)
sketch11.addGeometry(Part.Circle(Vector(59.5, 11.2, 0), Vector(0, 0, 1), 2.5), False)
sketch11.addConstraint(Sketcher.Constraint("Equal", 0, 1))
sketch11.addConstraint(Sketcher.Constraint("Equal", 1, 2))
sketch11.addConstraint(Sketcher.Constraint("Horizontal", 1, 3, 2, 3))
sketch11.addConstraint(Sketcher.Constraint("Diameter", 0, Q("5 mm")))
sketch11.addConstraint(Sketcher.Constraint("DistanceY", -1, 1, 0, 3, Q("22.5 mm")))
sketch11.addConstraint(Sketcher.Constraint("DistanceX", -1, 1, 0, 3, Q("40 mm")))
sketch11.addConstraint(Sketcher.Constraint("DistanceY", -1, 1, 1, 3, Q("11.25 mm")))
sketch11.addConstraint(Sketcher.Constraint("DistanceX", -1, 1, 1, 3, Q("20.5144 mm")))
sketch11.addConstraint(Sketcher.Constraint("DistanceX", -1, 1, 2, 3, Q("59.4856 mm")))
pocket8 = body.newObject("PartDesign::Pocket", "Pocket007")
pocket8.Profile = sketch11
pocket8.Length = 10

doc.recompute()
